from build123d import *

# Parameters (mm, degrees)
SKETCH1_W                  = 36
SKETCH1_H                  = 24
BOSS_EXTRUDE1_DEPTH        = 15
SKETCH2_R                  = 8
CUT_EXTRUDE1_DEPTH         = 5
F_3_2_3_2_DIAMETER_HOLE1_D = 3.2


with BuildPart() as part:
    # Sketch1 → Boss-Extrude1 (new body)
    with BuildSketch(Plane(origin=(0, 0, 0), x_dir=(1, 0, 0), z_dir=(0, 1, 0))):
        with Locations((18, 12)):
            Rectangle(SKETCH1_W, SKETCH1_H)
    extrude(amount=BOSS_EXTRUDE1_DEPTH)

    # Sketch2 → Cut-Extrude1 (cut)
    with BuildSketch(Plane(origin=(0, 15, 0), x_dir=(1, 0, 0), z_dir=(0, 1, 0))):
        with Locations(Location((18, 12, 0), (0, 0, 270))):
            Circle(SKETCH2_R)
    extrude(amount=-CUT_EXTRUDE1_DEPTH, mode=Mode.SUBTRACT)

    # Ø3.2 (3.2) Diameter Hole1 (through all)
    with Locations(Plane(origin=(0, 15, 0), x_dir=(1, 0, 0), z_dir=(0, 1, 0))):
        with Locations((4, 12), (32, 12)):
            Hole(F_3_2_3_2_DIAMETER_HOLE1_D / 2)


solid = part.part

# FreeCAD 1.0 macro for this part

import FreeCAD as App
import Part
import Sketcher

V = App.Vector


def add_polygon(sketch, points):
    """Adds a closed chain of lines whose ends are joined by coincident constraints."""
    first, n = sketch.GeometryCount, len(points)
    for a, b in zip(points, points[1:] + points[:1]):
        sketch.addGeometry(Part.LineSegment(App.Vector(*a, 0), App.Vector(*b, 0)), False)
    for i in range(n):
        sketch.addConstraint(Sketcher.Constraint("Coincident", first + i, 2, first + (i + 1) % n, 1))

doc = App.newDocument("Part")
body = doc.addObject("PartDesign::Body", "Body")

# Sketch on XZ plane
sketch1 = doc.addObject("Sketcher::SketchObject", "Sketch")
body.addObject(sketch1)
sketch1.AttachmentSupport = (doc.XZ_Plane, [""])
sketch1.MapMode = "FlatFace"
add_polygon(sketch1, [(0, -24), (0, 0), (36, 0), (36, -24)])  # lines 0-3
sketch1.addConstraint([
    Sketcher.Constraint("Vertical", 0),
    Sketcher.Constraint("Horizontal", 1),
    Sketcher.Constraint("Vertical", 2),
    Sketcher.Constraint("Horizontal", 3),
    Sketcher.Constraint("Coincident", 0, 2, -1, 1),
    Sketcher.Constraint("DistanceX", 1, 1, 1, 2, 36.0),
    Sketcher.Constraint("DistanceY", 0, 1, 0, 2, 24.0),
])
pad1 = doc.addObject("PartDesign::Pad", "Pad")
body.addObject(pad1)
pad1.Profile = sketch1
pad1.Length = 15
pad1.Reversed = True

# Sketch on XZ plane
sketch2 = doc.addObject("Sketcher::SketchObject", "Sketch001")
body.addObject(sketch2)
sketch2.AttachmentSupport = (doc.XZ_Plane, [""])
sketch2.MapMode = "FlatFace"
sketch2.AttachmentOffset = App.Placement(V(0, 0, -15), App.Rotation())
sketch2.addGeometry(Part.Circle(V(18, -12, 0), V(0, 0, 1), 8), False)
sketch2.addConstraint([
    Sketcher.Constraint("Diameter", 0, 16.0),
    Sketcher.Constraint("DistanceX", -1, 1, 0, 3, 18.0),
    Sketcher.Constraint("DistanceY", 0, 3, -1, 1, 12.0),
])
pocket1 = doc.addObject("PartDesign::Pocket", "Pocket")
body.addObject(pocket1)
pocket1.Profile = sketch2
pocket1.Length = 5
pocket1.Reversed = True

# Sketch on XZ plane
sketch3 = doc.addObject("Sketcher::SketchObject", "Sketch002")
body.addObject(sketch3)
sketch3.AttachmentSupport = (doc.XZ_Plane, [""])
sketch3.MapMode = "FlatFace"
sketch3.AttachmentOffset = App.Placement(V(0, 0, -15), App.Rotation())
sketch3.addGeometry([
    Part.Circle(V(4, -12, 0), V(0, 0, 1), 1.6),
    Part.Circle(V(32, -12, 0), V(0, 0, 1), 1.6),
], False)
sketch3.addConstraint([
    Sketcher.Constraint("Equal", 0, 1),
    Sketcher.Constraint("Horizontal", 0, 3, 1, 3),
    Sketcher.Constraint("Diameter", 0, 3.2),
    Sketcher.Constraint("DistanceX", -1, 1, 0, 3, 4.0),
    Sketcher.Constraint("DistanceY", 0, 3, -1, 1, 12.0),
    Sketcher.Constraint("DistanceX", -1, 1, 1, 3, 32.0),
])
doc.recompute()
hole = doc.addObject("PartDesign::Hole", "Hole")
body.addObject(hole)
hole.Profile = sketch3
hole.ThreadType = "None"
hole.Diameter = 3.2
hole.DepthType = "ThroughAll"
hole.Reversed = True

doc.recompute()
